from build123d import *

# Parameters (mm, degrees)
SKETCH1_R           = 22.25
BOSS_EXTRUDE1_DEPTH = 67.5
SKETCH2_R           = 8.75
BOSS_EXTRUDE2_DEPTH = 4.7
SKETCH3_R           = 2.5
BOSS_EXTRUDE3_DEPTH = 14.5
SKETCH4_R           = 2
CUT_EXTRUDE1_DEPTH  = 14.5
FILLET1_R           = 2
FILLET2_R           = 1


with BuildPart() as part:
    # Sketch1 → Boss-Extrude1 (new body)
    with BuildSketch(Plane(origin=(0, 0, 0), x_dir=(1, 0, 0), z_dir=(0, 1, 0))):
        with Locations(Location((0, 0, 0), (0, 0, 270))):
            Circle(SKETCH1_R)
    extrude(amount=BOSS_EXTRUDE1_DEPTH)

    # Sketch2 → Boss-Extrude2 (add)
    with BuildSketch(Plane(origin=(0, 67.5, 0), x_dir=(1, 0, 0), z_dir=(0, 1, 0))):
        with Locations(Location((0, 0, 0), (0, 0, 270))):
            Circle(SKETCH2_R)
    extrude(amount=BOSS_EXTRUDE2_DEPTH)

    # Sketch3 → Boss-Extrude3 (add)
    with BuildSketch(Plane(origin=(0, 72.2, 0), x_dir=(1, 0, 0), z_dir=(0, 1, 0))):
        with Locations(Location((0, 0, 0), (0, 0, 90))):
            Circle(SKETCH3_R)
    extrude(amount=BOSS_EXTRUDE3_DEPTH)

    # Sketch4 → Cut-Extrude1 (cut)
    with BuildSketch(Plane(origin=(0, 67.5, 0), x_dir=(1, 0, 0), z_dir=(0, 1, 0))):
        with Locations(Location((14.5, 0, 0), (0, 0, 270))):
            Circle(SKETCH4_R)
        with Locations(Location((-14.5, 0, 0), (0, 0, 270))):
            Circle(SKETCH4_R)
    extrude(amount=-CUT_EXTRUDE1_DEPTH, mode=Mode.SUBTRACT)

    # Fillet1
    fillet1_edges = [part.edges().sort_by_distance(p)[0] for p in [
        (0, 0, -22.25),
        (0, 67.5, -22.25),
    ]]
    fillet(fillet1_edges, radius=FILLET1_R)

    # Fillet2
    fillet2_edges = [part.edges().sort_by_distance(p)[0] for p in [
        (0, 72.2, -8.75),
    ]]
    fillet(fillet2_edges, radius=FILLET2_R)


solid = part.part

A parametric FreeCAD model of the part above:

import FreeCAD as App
import Part
import Sketcher

V = App.Vector


def edges_at(feature, points):
    """Names of the edges that pass closest to the given points."""
    edges = feature.Shape.Edges
    near = lambda p: min(range(len(edges)), key=lambda i: edges[i].distToShape(Part.Vertex(*p))[0])
    return sorted({f"Edge{near(p) + 1}" for p in points})

doc = App.newDocument("Part")
body = doc.addObject("PartDesign::Body", "Body")

# Sketch on XZ plane
sketch1 = body.newObject("Sketcher::SketchObject", "Sketch")
sketch1.AttachmentSupport = (doc.getObject("XZ_Plane"), [""])
sketch1.MapMode = "FlatFace"
sketch1.addGeometry(Part.Circle(V(0, 0, 0), V(0, 0, 1), 22.25), False)
sketch1.addConstraint(Sketcher.Constraint("Coincident", 0, 3, -1, 1))
sketch1.addConstraint(Sketcher.Constraint("Diameter", 0, 44.5))
pad1 = body.newObject("PartDesign::Pad", "Pad")
pad1.Profile = sketch1
pad1.Length = 67.5
pad1.Reversed = True

# Sketch on XZ plane
sketch2 = body.newObject("Sketcher::SketchObject", "Sketch001")
sketch2.AttachmentSupport = (doc.getObject("XZ_Plane"), [""])
sketch2.MapMode = "FlatFace"
sketch2.AttachmentOffset = App.Placement(V(0, 0, -67.5), App.Rotation())
sketch2.addGeometry(Part.Circle(V(0, 0, 0), V(0, 0, 1), 8.75), False)
sketch2.addConstraint(Sketcher.Constraint("Coincident", 0, 3, -1, 1))
sketch2.addConstraint(Sketcher.Constraint("Diameter", 0, 17.5))
pad2 = body.newObject("PartDesign::Pad", "Pad001")
pad2.Profile = sketch2
pad2.Length = 4.7
pad2.Reversed = True

# Sketch on XZ plane
sketch3 = body.newObject("Sketcher::SketchObject", "Sketch002")
sketch3.AttachmentSupport = (doc.getObject("XZ_Plane"), [""])
sketch3.MapMode = "FlatFace"
sketch3.AttachmentOffset = App.Placement(V(0, 0, -72.2), App.Rotation())
sketch3.addGeometry(Part.Circle(V(0, 0, 0), V(0, 0, 1), 2.5), False)
sketch3.addConstraint(Sketcher.Constraint("Coincident", 0, 3, -1, 1))
sketch3.addConstraint(Sketcher.Constraint("Diameter", 0, 5.0))
pad3 = body.newObject("PartDesign::Pad", "Pad002")
pad3.Profile = sketch3
pad3.Length = 14.5
pad3.Reversed = True

# Sketch on XZ plane
sketch4 = body.newObject("Sketcher::SketchObject", "Sketch003")
sketch4.AttachmentSupport = (doc.getObject("XZ_Plane"), [""])
sketch4.MapMode = "FlatFace"
sketch4.AttachmentOffset = App.Placement(V(0, 0, -67.5), App.Rotation())
sketch4.addGeometry(Part.Circle(V(14.5, 0, 0), V(0, 0, 1), 2), False)
sketch4.addGeometry(Part.Circle(V(-14.5, 0, 0), V(0, 0, 1), 2), False)
sketch4.addConstraint(Sketcher.Constraint("Equal", 0, 1))
sketch4.addConstraint(Sketcher.Constraint("Symmetric", 0, 3, 1, 3, -1, 1))
sketch4.addConstraint(Sketcher.Constraint("PointOnObject", 0, 3, -1))
sketch4.addConstraint(Sketcher.Constraint("Diameter", 0, 4.0))
sketch4.addConstraint(Sketcher.Constraint("DistanceX", 1, 3, 0, 3, 29.0))
pocket1 = body.newObject("PartDesign::Pocket", "Pocket")
pocket1.Profile = sketch4
pocket1.Length = 14.5
pocket1.Reversed = True
doc.recompute()

fillet = body.newObject("PartDesign::Fillet", "Fillet")
fillet.Base = (pocket1, edges_at(pocket1, [(0, 0, -22.25), (0, 67.5, -22.25)]))
fillet.Radius = 2
doc.recompute()

fillet2 = body.newObject("PartDesign::Fillet", "Fillet001")
fillet2.Base = (fillet, edges_at(fillet, [(0, 72.2, -8.75)]))
fillet2.Radius = 1

doc.recompute()
